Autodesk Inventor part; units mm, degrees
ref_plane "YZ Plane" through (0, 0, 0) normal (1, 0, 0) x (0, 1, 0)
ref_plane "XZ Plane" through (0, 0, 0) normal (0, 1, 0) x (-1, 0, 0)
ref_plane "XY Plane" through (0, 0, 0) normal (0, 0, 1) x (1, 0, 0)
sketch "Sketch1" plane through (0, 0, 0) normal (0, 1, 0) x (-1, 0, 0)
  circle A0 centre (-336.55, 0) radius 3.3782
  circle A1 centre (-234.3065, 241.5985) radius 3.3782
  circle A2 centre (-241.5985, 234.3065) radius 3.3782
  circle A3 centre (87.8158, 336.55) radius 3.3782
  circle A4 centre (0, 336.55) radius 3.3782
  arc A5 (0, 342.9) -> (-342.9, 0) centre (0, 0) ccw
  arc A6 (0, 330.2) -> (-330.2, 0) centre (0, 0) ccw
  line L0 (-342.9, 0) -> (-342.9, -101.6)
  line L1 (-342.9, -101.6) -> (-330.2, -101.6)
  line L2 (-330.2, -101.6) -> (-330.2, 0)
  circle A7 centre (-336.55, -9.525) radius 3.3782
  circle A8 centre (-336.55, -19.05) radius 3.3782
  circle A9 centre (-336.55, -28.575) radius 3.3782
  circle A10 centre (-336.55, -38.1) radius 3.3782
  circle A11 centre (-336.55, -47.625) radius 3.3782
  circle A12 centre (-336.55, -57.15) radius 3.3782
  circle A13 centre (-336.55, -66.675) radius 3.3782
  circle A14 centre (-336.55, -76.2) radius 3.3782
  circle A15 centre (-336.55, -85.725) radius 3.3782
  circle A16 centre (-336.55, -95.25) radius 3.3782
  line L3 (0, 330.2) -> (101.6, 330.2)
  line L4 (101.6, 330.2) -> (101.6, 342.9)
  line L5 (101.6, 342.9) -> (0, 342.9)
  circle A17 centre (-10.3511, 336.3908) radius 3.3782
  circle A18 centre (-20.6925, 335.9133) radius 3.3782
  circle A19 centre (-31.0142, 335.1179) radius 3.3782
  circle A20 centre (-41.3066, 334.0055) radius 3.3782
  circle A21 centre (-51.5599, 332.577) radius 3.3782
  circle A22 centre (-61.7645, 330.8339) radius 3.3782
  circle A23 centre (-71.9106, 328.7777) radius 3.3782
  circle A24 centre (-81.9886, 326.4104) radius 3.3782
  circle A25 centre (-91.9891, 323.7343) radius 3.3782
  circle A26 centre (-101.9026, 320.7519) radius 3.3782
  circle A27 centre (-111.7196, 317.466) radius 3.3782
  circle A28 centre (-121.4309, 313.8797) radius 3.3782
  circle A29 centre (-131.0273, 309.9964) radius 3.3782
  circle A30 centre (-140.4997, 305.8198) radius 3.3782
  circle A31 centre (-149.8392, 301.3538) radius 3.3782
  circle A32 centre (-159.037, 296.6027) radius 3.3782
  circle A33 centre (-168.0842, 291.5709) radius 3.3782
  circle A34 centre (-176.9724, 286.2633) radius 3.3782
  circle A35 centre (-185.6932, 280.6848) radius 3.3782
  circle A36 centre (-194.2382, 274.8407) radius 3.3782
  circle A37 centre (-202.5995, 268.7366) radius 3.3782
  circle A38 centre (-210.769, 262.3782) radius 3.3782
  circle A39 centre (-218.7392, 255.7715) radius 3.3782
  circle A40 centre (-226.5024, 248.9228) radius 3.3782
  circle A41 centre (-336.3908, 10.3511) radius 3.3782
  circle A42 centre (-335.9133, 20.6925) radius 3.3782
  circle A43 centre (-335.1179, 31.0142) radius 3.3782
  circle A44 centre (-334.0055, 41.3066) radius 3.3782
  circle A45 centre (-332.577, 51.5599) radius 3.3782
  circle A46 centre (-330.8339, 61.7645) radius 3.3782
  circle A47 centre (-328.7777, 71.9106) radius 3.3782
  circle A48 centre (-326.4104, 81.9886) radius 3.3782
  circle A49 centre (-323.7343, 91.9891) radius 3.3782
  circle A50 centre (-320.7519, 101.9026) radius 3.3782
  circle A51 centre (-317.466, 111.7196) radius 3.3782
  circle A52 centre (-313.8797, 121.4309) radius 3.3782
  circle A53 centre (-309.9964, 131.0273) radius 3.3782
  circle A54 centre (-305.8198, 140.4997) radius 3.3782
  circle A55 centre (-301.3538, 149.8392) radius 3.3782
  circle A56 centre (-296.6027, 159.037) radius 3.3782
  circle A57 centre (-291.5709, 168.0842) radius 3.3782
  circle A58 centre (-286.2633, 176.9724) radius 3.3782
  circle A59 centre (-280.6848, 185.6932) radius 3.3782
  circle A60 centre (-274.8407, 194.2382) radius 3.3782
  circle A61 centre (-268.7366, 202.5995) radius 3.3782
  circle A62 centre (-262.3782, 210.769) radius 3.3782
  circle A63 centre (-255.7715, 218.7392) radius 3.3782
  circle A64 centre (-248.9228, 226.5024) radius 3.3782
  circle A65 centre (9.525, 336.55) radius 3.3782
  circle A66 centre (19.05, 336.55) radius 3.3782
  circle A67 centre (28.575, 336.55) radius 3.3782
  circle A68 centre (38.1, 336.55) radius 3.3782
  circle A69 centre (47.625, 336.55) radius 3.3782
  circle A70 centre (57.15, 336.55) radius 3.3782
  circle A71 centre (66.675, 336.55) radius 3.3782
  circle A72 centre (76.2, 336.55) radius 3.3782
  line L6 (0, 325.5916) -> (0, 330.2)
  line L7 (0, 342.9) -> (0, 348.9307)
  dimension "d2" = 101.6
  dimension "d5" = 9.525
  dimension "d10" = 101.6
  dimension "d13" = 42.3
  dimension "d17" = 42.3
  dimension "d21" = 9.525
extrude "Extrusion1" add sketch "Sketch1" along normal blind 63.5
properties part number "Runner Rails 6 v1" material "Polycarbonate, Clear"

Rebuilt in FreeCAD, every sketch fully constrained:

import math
import FreeCAD as App
import Part
import Sketcher
Q = App.Units.Quantity

doc = App.newDocument("Part")
body = doc.addObject("PartDesign::Body", "Body")

# Sketch on XZ plane
sketch1 = body.newObject("Sketcher::SketchObject", "Sketch")
sketch1.AttachmentSupport = (doc.getObject("XZ_Plane"), [""])
sketch1.MapMode = "FlatFace"
sketch1.addGeometry(Part.LineSegment(App.Vector(-101.6, 342.9, 0), App.Vector(0, 342.9, 0)), False)
sketch1.addGeometry(Part.ArcOfCircle(Part.Circle(App.Vector(0, 0, 0), App.Vector(0, 0, 1), 342.9), math.radians(0), math.radians(90)), False)
sketch1.addGeometry(Part.LineSegment(App.Vector(342.9, 0, 0), App.Vector(342.9, -101.6, 0)), False)
sketch1.addGeometry(Part.LineSegment(App.Vector(342.9, -101.6, 0), App.Vector(330.2, -101.6, 0)), False)
sketch1.addGeometry(Part.LineSegment(App.Vector(330.2, -101.6, 0), App.Vector(330.2, 0, 0)), False)
sketch1.addGeometry(Part.ArcOfCircle(Part.Circle(App.Vector(0, 0, 0), App.Vector(0, 0, 1), 330.2), math.radians(0), math.radians(90)), False)
sketch1.addGeometry(Part.LineSegment(App.Vector(0, 330.2, 0), App.Vector(-101.6, 330.2, 0)), False)
sketch1.addGeometry(Part.LineSegment(App.Vector(-101.6, 330.2, 0), App.Vector(-101.6, 342.9, 0)), False)
sketch1.addGeometry(Part.Circle(App.Vector(336.6, -95.2, 0), App.Vector(0, 0, 1), 3.4), False)
sketch1.addGeometry(Part.Circle(App.Vector(336.6, -85.7, 0), App.Vector(0, 0, 1), 3.4), False)
sketch1.addGeometry(Part.Circle(App.Vector(336.6, -76.2, 0), App.Vector(0, 0, 1), 3.4), False)
sketch1.addGeometry(Part.Circle(App.Vector(336.6, -66.7, 0), App.Vector(0, 0, 1), 3.4), False)
sketch1.addGeometry(Part.Circle(App.Vector(336.6, -57.1, 0), App.Vector(0, 0, 1), 3.4), False)
sketch1.addGeometry(Part.Circle(App.Vector(336.6, -47.6, 0), App.Vector(0, 0, 1), 3.4), False)
sketch1.addGeometry(Part.Circle(App.Vector(336.6, -38.1, 0), App.Vector(0, 0, 1), 3.4), False)
sketch1.addGeometry(Part.Circle(App.Vector(336.6, -28.6, 0), App.Vector(0, 0, 1), 3.4), False)
sketch1.addGeometry(Part.Circle(App.Vector(336.6, -19.1, 0), App.Vector(0, 0, 1), 3.4), False)
sketch1.addGeometry(Part.Circle(App.Vector(336.6, -9.5, 0), App.Vector(0, 0, 1), 3.4), False)
sketch1.addGeometry(Part.Circle(App.Vector(336.6, 0, 0), App.Vector(0, 0, 1), 3.4), False)
sketch1.addGeometry(Part.Circle(App.Vector(336.4, 10.4, 0), App.Vector(0, 0, 1), 3.4), False)
sketch1.addGeometry(Part.Circle(App.Vector(335.9, 20.7, 0), App.Vector(0, 0, 1), 3.4), False)
sketch1.addGeometry(Part.Circle(App.Vector(335.1, 31, 0), App.Vector(0, 0, 1), 3.4), False)
sketch1.addGeometry(Part.Circle(App.Vector(334, 41.3, 0), App.Vector(0, 0, 1), 3.4), False)
sketch1.addGeometry(Part.Circle(App.Vector(332.6, 51.6, 0), App.Vector(0, 0, 1), 3.4), False)
sketch1.addGeometry(Part.Circle(App.Vector(330.8, 61.8, 0), App.Vector(0, 0, 1), 3.4), False)
sketch1.addGeometry(Part.Circle(App.Vector(328.8, 71.9, 0), App.Vector(0, 0, 1), 3.4), False)
sketch1.addGeometry(Part.Circle(App.Vector(326.4, 82, 0), App.Vector(0, 0, 1), 3.4), False)
sketch1.addGeometry(Part.Circle(App.Vector(323.7, 92, 0), App.Vector(0, 0, 1), 3.4), False)
sketch1.addGeometry(Part.Circle(App.Vector(320.8, 101.9, 0), App.Vector(0, 0, 1), 3.4), False)
sketch1.addGeometry(Part.Circle(App.Vector(317.5, 111.7, 0), App.Vector(0, 0, 1), 3.4), False)
sketch1.addGeometry(Part.Circle(App.Vector(313.9, 121.4, 0), App.Vector(0, 0, 1), 3.4), False)
sketch1.addGeometry(Part.Circle(App.Vector(310, 131, 0), App.Vector(0, 0, 1), 3.4), False)
sketch1.addGeometry(Part.Circle(App.Vector(305.8, 140.5, 0), App.Vector(0, 0, 1), 3.4), False)
sketch1.addGeometry(Part.Circle(App.Vector(301.4, 149.8, 0), App.Vector(0, 0, 1), 3.4), False)
sketch1.addGeometry(Part.Circle(App.Vector(296.6, 159, 0), App.Vector(0, 0, 1), 3.4), False)
sketch1.addGeometry(Part.Circle(App.Vector(291.6, 168.1, 0), App.Vector(0, 0, 1), 3.4), False)
sketch1.addGeometry(Part.Circle(App.Vector(286.3, 177, 0), App.Vector(0, 0, 1), 3.4), False)
sketch1.addGeometry(Part.Circle(App.Vector(280.7, 185.7, 0), App.Vector(0, 0, 1), 3.4), False)
sketch1.addGeometry(Part.Circle(App.Vector(274.8, 194.2, 0), App.Vector(0, 0, 1), 3.4), False)
sketch1.addGeometry(Part.Circle(App.Vector(268.7, 202.6, 0), App.Vector(0, 0, 1), 3.4), False)
sketch1.addGeometry(Part.Circle(App.Vector(262.4, 210.8, 0), App.Vector(0, 0, 1), 3.4), False)
sketch1.addGeometry(Part.Circle(App.Vector(255.8, 218.7, 0), App.Vector(0, 0, 1), 3.4), False)
sketch1.addGeometry(Part.Circle(App.Vector(248.9, 226.5, 0), App.Vector(0, 0, 1), 3.4), False)
sketch1.addGeometry(Part.Circle(App.Vector(241.6, 234.3, 0), App.Vector(0, 0, 1), 3.4), False)
sketch1.addGeometry(Part.Circle(App.Vector(234.3, 241.6, 0), App.Vector(0, 0, 1), 3.4), False)
sketch1.addGeometry(Part.Circle(App.Vector(226.5, 248.9, 0), App.Vector(0, 0, 1), 3.4), False)
sketch1.addGeometry(Part.Circle(App.Vector(218.7, 255.8, 0), App.Vector(0, 0, 1), 3.4), False)
sketch1.addGeometry(Part.Circle(App.Vector(210.8, 262.4, 0), App.Vector(0, 0, 1), 3.4), False)
sketch1.addGeometry(Part.Circle(App.Vector(202.6, 268.7, 0), App.Vector(0, 0, 1), 3.4), False)
sketch1.addGeometry(Part.Circle(App.Vector(194.2, 274.8, 0), App.Vector(0, 0, 1), 3.4), False)
sketch1.addGeometry(Part.Circle(App.Vector(185.7, 280.7, 0), App.Vector(0, 0, 1), 3.4), False)
sketch1.addGeometry(Part.Circle(App.Vector(177, 286.3, 0), App.Vector(0, 0, 1), 3.4), False)
sketch1.addGeometry(Part.Circle(App.Vector(168.1, 291.6, 0), App.Vector(0, 0, 1), 3.4), False)
sketch1.addGeometry(Part.Circle(App.Vector(159, 296.6, 0), App.Vector(0, 0, 1), 3.4), False)
sketch1.addGeometry(Part.Circle(App.Vector(149.8, 301.4, 0), App.Vector(0, 0, 1), 3.4), False)
sketch1.addGeometry(Part.Circle(App.Vector(140.5, 305.8, 0), App.Vector(0, 0, 1), 3.4), False)
sketch1.addGeometry(Part.Circle(App.Vector(131, 310, 0), App.Vector(0, 0, 1), 3.4), False)
sketch1.addGeometry(Part.Circle(App.Vector(121.4, 313.9, 0), App.Vector(0, 0, 1), 3.4), False)
sketch1.addGeometry(Part.Circle(App.Vector(111.7, 317.5, 0), App.Vector(0, 0, 1), 3.4), False)
sketch1.addGeometry(Part.Circle(App.Vector(101.9, 320.8, 0), App.Vector(0, 0, 1), 3.4), False)
sketch1.addGeometry(Part.Circle(App.Vector(92, 323.7, 0), App.Vector(0, 0, 1), 3.4), False)
sketch1.addGeometry(Part.Circle(App.Vector(82, 326.4, 0), App.Vector(0, 0, 1), 3.4), False)
sketch1.addGeometry(Part.Circle(App.Vector(71.9, 328.8, 0), App.Vector(0, 0, 1), 3.4), False)
sketch1.addGeometry(Part.Circle(App.Vector(61.8, 330.8, 0), App.Vector(0, 0, 1), 3.4), False)
sketch1.addGeometry(Part.Circle(App.Vector(51.6, 332.6, 0), App.Vector(0, 0, 1), 3.4), False)
sketch1.addGeometry(Part.Circle(App.Vector(41.3, 334, 0), App.Vector(0, 0, 1), 3.4), False)
sketch1.addGeometry(Part.Circle(App.Vector(31, 335.1, 0), App.Vector(0, 0, 1), 3.4), False)
sketch1.addGeometry(Part.Circle(App.Vector(20.7, 335.9, 0), App.Vector(0, 0, 1), 3.4), False)
sketch1.addGeometry(Part.Circle(App.Vector(10.4, 336.4, 0), App.Vector(0, 0, 1), 3.4), False)
sketch1.addGeometry(Part.Circle(App.Vector(0, 336.6, 0), App.Vector(0, 0, 1), 3.4), False)
sketch1.addGeometry(Part.Circle(App.Vector(-9.5, 336.6, 0), App.Vector(0, 0, 1), 3.4), False)
sketch1.addGeometry(Part.Circle(App.Vector(-19.1, 336.6, 0), App.Vector(0, 0, 1), 3.4), False)
sketch1.addGeometry(Part.Circle(App.Vector(-28.6, 336.6, 0), App.Vector(0, 0, 1), 3.4), False)
sketch1.addGeometry(Part.Circle(App.Vector(-38.1, 336.6, 0), App.Vector(0, 0, 1), 3.4), False)
sketch1.addGeometry(Part.Circle(App.Vector(-47.6, 336.6, 0), App.Vector(0, 0, 1), 3.4), False)
sketch1.addGeometry(Part.Circle(App.Vector(-57.1, 336.6, 0), App.Vector(0, 0, 1), 3.4), False)
sketch1.addGeometry(Part.Circle(App.Vector(-66.7, 336.6, 0), App.Vector(0, 0, 1), 3.4), False)
sketch1.addGeometry(Part.Circle(App.Vector(-76.2, 336.6, 0), App.Vector(0, 0, 1), 3.4), False)
sketch1.addGeometry(Part.Circle(App.Vector(-87.8, 336.6, 0), App.Vector(0, 0, 1), 3.4), False)
sketch1.addConstraint(Sketcher.Constraint("Tangent", 0, 2, 1, 2))
sketch1.addConstraint(Sketcher.Constraint("Tangent", 1, 1, 2, 1))
sketch1.addConstraint(Sketcher.Constraint("Coincident", 2, 2, 3, 1))
sketch1.addConstraint(Sketcher.Constraint("Coincident", 3, 2, 4, 1))
sketch1.addConstraint(Sketcher.Constraint("Tangent", 4, 2, 5, 1))
sketch1.addConstraint(Sketcher.Constraint("Tangent", 5, 2, 6, 1))
sketch1.addConstraint(Sketcher.Constraint("Coincident", 6, 2, 7, 1))
sketch1.addConstraint(Sketcher.Constraint("Coincident", 7, 2, 0, 1))
sketch1.addConstraint(Sketcher.Constraint("Horizontal", 0))
sketch1.addConstraint(Sketcher.Constraint("Vertical", 2))
sketch1.addConstraint(Sketcher.Constraint("Horizontal", 3))
sketch1.addConstraint(Sketcher.Constraint("Vertical", 4))
sketch1.addConstraint(Sketcher.Constraint("Horizontal", 6))
sketch1.addConstraint(Sketcher.Constraint("Vertical", 7))
sketch1.addConstraint(Sketcher.Constraint("Coincident", 1, 3, -1, 1))
sketch1.addConstraint(Sketcher.Constraint("Coincident", 5, 3, -1, 1))
sketch1.addConstraint(Sketcher.Constraint("Equal", 8, 9))
sketch1.addConstraint(Sketcher.Constraint("Equal", 9, 10))
sketch1.addConstraint(Sketcher.Constraint("Equal", 10, 11))
sketch1.addConstraint(Sketcher.Constraint("Equal", 11, 12))
sketch1.addConstraint(Sketcher.Constraint("Equal", 12, 13))
sketch1.addConstraint(Sketcher.Constraint("Equal", 13, 14))
sketch1.addConstraint(Sketcher.Constraint("Equal", 14, 15))
sketch1.addConstraint(Sketcher.Constraint("Equal", 15, 16))
sketch1.addConstraint(Sketcher.Constraint("Equal", 16, 17))
sketch1.addConstraint(Sketcher.Constraint("Equal", 17, 18))
sketch1.addConstraint(Sketcher.Constraint("Equal", 18, 19))
sketch1.addConstraint(Sketcher.Constraint("Equal", 19, 20))
sketch1.addConstraint(Sketcher.Constraint("Equal", 20, 21))
sketch1.addConstraint(Sketcher.Constraint("Equal", 21, 22))
sketch1.addConstraint(Sketcher.Constraint("Equal", 22, 23))
sketch1.addConstraint(Sketcher.Constraint("Equal", 23, 24))
sketch1.addConstraint(Sketcher.Constraint("Equal", 24, 25))
sketch1.addConstraint(Sketcher.Constraint("Equal", 25, 26))
sketch1.addConstraint(Sketcher.Constraint("Equal", 26, 27))
sketch1.addConstraint(Sketcher.Constraint("Equal", 27, 28))
sketch1.addConstraint(Sketcher.Constraint("Equal", 28, 29))
sketch1.addConstraint(Sketcher.Constraint("Equal", 29, 30))
sketch1.addConstraint(Sketcher.Constraint("Equal", 30, 31))
sketch1.addConstraint(Sketcher.Constraint("Equal", 31, 32))
sketch1.addConstraint(Sketcher.Constraint("Equal", 32, 33))
sketch1.addConstraint(Sketcher.Constraint("Equal", 33, 34))
sketch1.addConstraint(Sketcher.Constraint("Equal", 34, 35))
sketch1.addConstraint(Sketcher.Constraint("Equal", 35, 36))
sketch1.addConstraint(Sketcher.Constraint("Equal", 36, 37))
sketch1.addConstraint(Sketcher.Constraint("Equal", 37, 38))
sketch1.addConstraint(Sketcher.Constraint("Equal", 38, 39))
sketch1.addConstraint(Sketcher.Constraint("Equal", 39, 40))
sketch1.addConstraint(Sketcher.Constraint("Equal", 40, 41))
sketch1.addConstraint(Sketcher.Constraint("Equal", 41, 42))
sketch1.addConstraint(Sketcher.Constraint("Equal", 42, 43))
sketch1.addConstraint(Sketcher.Constraint("Equal", 43, 44))
sketch1.addConstraint(Sketcher.Constraint("Equal", 44, 45))
sketch1.addConstraint(Sketcher.Constraint("Equal", 45, 46))
sketch1.addConstraint(Sketcher.Constraint("Equal", 46, 47))
sketch1.addConstraint(Sketcher.Constraint("Equal", 47, 48))
sketch1.addConstraint(Sketcher.Constraint("Equal", 48, 49))
sketch1.addConstraint(Sketcher.Constraint("Equal", 49, 50))
sketch1.addConstraint(Sketcher.Constraint("Equal", 50, 51))
sketch1.addConstraint(Sketcher.Constraint("Equal", 51, 52))
sketch1.addConstraint(Sketcher.Constraint("Equal", 52, 53))
sketch1.addConstraint(Sketcher.Constraint("Equal", 53, 54))
sketch1.addConstraint(Sketcher.Constraint("Equal", 54, 55))
sketch1.addConstraint(Sketcher.Constraint("Equal", 55, 56))
sketch1.addConstraint(Sketcher.Constraint("Equal", 56, 57))
sketch1.addConstraint(Sketcher.Constraint("Equal", 57, 58))
sketch1.addConstraint(Sketcher.Constraint("Equal", 58, 59))
sketch1.addConstraint(Sketcher.Constraint("Equal", 59, 60))
sketch1.addConstraint(Sketcher.Constraint("Equal", 60, 61))
sketch1.addConstraint(Sketcher.Constraint("Equal", 61, 62))
sketch1.addConstraint(Sketcher.Constraint("Equal", 62, 63))
sketch1.addConstraint(Sketcher.Constraint("Equal", 63, 64))
sketch1.addConstraint(Sketcher.Constraint("Equal", 64, 65))
sketch1.addConstraint(Sketcher.Constraint("Equal", 65, 66))
sketch1.addConstraint(Sketcher.Constraint("Equal", 66, 67))
sketch1.addConstraint(Sketcher.Constraint("Equal", 67, 68))
sketch1.addConstraint(Sketcher.Constraint("Equal", 68, 69))
sketch1.addConstraint(Sketcher.Constraint("Equal", 69, 70))
sketch1.addConstraint(Sketcher.Constraint("Equal", 70, 71))
sketch1.addConstraint(Sketcher.Constraint("Equal", 71, 72))
sketch1.addConstraint(Sketcher.Constraint("Equal", 72, 73))
sketch1.addConstraint(Sketcher.Constraint("Equal", 73, 74))
sketch1.addConstraint(Sketcher.Constraint("Equal", 74, 75))
sketch1.addConstraint(Sketcher.Constraint("Equal", 75, 76))
sketch1.addConstraint(Sketcher.Constraint("Equal", 76, 77))
sketch1.addConstraint(Sketcher.Constraint("Equal", 77, 78))
sketch1.addConstraint(Sketcher.Constraint("PointOnObject", 18, 3, -1))
sketch1.addConstraint(Sketcher.Constraint("PointOnObject", 69, 3, -2))
sketch1.addConstraint(Sketcher.Constraint("Horizontal", 69, 3, 70, 3))
sketch1.addConstraint(Sketcher.Constraint("Horizontal", 70, 3, 71, 3))
sketch1.addConstraint(Sketcher.Constraint("Horizontal", 71, 3, 72, 3))
sketch1.addConstraint(Sketcher.Constraint("Horizontal", 72, 3, 73, 3))
sketch1.addConstraint(Sketcher.Constraint("Horizontal", 73, 3, 74, 3))
sketch1.addConstraint(Sketcher.Constraint("Horizontal", 74, 3, 75, 3))
sketch1.addConstraint(Sketcher.Constraint("Horizontal", 75, 3, 76, 3))
sketch1.addConstraint(Sketcher.Constraint("Horizontal", 76, 3, 77, 3))
sketch1.addConstraint(Sketcher.Constraint("Horizontal", 77, 3, 78, 3))
sketch1.addConstraint(Sketcher.Constraint("Vertical", 8, 3, 9, 3))
sketch1.addConstraint(Sketcher.Constraint("Vertical", 9, 3, 10, 3))
sketch1.addConstraint(Sketcher.Constraint("Vertical", 10, 3, 11, 3))
sketch1.addConstraint(Sketcher.Constraint("Vertical", 11, 3, 12, 3))
sketch1.addConstraint(Sketcher.Constraint("Vertical", 12, 3, 13, 3))
sketch1.addConstraint(Sketcher.Constraint("Vertical", 13, 3, 14, 3))
sketch1.addConstraint(Sketcher.Constraint("Vertical", 14, 3, 15, 3))
sketch1.addConstraint(Sketcher.Constraint("Vertical", 15, 3, 16, 3))
sketch1.addConstraint(Sketcher.Constraint("Vertical", 16, 3, 17, 3))
sketch1.addConstraint(Sketcher.Constraint("Vertical", 17, 3, 18, 3))
sketch1.addConstraint(Sketcher.Constraint("Equal", 6, 2))
sketch1.addConstraint(Sketcher.Constraint("DistanceX", 0, 1, 0, 2, Q("4 in")))
sketch1.addConstraint(Sketcher.Constraint("Radius", 5, Q("13 in")))
sketch1.addConstraint(Sketcher.Constraint("Radius", 1, Q("13.5 in")))
sketch1.addConstraint(Sketcher.Constraint("Diameter", 8, Q("0.266 in")))
sketch1.addConstraint(Sketcher.Constraint("DistanceY", 10, 3, -1, 1, Q("3 in")))
sketch1.addConstraint(Sketcher.Constraint("DistanceY", 17, 3, -1, 1, Q("0.375 in")))
sketch1.addConstraint(Sketcher.Constraint("DistanceX", 70, 3, -1, 1, Q("0.375 in")))
sketch1.addConstraint(Sketcher.Constraint("DistanceX", 77, 3, -1, 1, Q("3 in")))
sketch1.addConstraint(Sketcher.Constraint("DistanceY", 14, 3, -1, 1, Q("1.5 in")))
sketch1.addConstraint(Sketcher.Constraint("DistanceX", 73, 3, -1, 1, Q("1.5 in")))
sketch1.addConstraint(Sketcher.Constraint("DistanceX", -1, 1, 8, 3, Q("13.25 in")))
sketch1.addConstraint(Sketcher.Constraint("DistanceY", 8, 3, -1, 1, Q("3.75 in")))
sketch1.addConstraint(Sketcher.Constraint("DistanceY", 12, 3, -1, 1, Q("2.25 in")))
sketch1.addConstraint(Sketcher.Constraint("DistanceY", 16, 3, -1, 1, Q("0.75 in")))
sketch1.addConstraint(Sketcher.Constraint("DistanceY", -1, 1, 69, 3, Q("13.25 in")))
sketch1.addConstraint(Sketcher.Constraint("DistanceX", 71, 3, -1, 1, Q("0.75 in")))
sketch1.addConstraint(Sketcher.Constraint("DistanceX", 75, 3, -1, 1, Q("2.25 in")))
sketch1.addConstraint(Sketcher.Constraint("DistanceY", 9, 3, -1, 1, Q("3.375 in")))
sketch1.addConstraint(Sketcher.Constraint("DistanceY", 11, 3, -1, 1, Q("2.625 in")))
sketch1.addConstraint(Sketcher.Constraint("DistanceY", 13, 3, -1, 1, Q("1.875 in")))
sketch1.addConstraint(Sketcher.Constraint("DistanceY", 15, 3, -1, 1, Q("1.125 in")))
sketch1.addConstraint(Sketcher.Constraint("DistanceX", -1, 1, 25, 3, Q("12.944 in")))
sketch1.addConstraint(Sketcher.Constraint("DistanceY", -1, 1, 40, 3, Q("8.298 in")))
sketch1.addConstraint(Sketcher.Constraint("DistanceX", -1, 1, 47, 3, Q("8.298 in")))
sketch1.addConstraint(Sketcher.Constraint("DistanceY", -1, 1, 62, 3, Q("12.944 in")))
sketch1.addConstraint(Sketcher.Constraint("DistanceX", 72, 3, -1, 1, Q("1.125 in")))
sketch1.addConstraint(Sketcher.Constraint("DistanceX", 74, 3, -1, 1, Q("1.875 in")))
sketch1.addConstraint(Sketcher.Constraint("DistanceX", 76, 3, -1, 1, Q("2.625 in")))
sketch1.addConstraint(Sketcher.Constraint("DistanceX", -1, 1, 26, 3, Q("12.8508 in")))
sketch1.addConstraint(Sketcher.Constraint("DistanceY", -1, 1, 26, 3, Q("3.2279 in")))
sketch1.addConstraint(Sketcher.Constraint("DistanceY", -1, 1, 29, 3, Q("4.3984 in")))
sketch1.addConstraint(Sketcher.Constraint("DistanceY", -1, 1, 34, 3, Q("6.2613 in")))
sketch1.addConstraint(Sketcher.Constraint("DistanceY", -1, 1, 35, 3, Q("6.6175 in")))
sketch1.addConstraint(Sketcher.Constraint("DistanceX", -1, 1, 36, 3, Q("11.2702 in")))
sketch1.addConstraint(Sketcher.Constraint("DistanceX", -1, 1, 38, 3, Q("10.8205 in")))
sketch1.addConstraint(Sketcher.Constraint("DistanceX", -1, 1, 42, 3, Q("9.8001 in")))
sketch1.addConstraint(Sketcher.Constraint("DistanceY", -1, 1, 45, 3, Q("9.8001 in")))
sketch1.addConstraint(Sketcher.Constraint("DistanceY", -1, 1, 49, 3, Q("10.8205 in")))
sketch1.addConstraint(Sketcher.Constraint("DistanceY", -1, 1, 51, 3, Q("11.2702 in")))
sketch1.addConstraint(Sketcher.Constraint("DistanceX", -1, 1, 52, 3, Q("6.6175 in")))
sketch1.addConstraint(Sketcher.Constraint("DistanceX", -1, 1, 53, 3, Q("6.2613 in")))
sketch1.addConstraint(Sketcher.Constraint("DistanceX", -1, 1, 58, 3, Q("4.3984 in")))
sketch1.addConstraint(Sketcher.Constraint("DistanceX", -1, 1, 61, 3, Q("3.2279 in")))
sketch1.addConstraint(Sketcher.Constraint("DistanceY", -1, 1, 61, 3, Q("12.8508 in")))
sketch1.addConstraint(Sketcher.Constraint("DistanceX", -1, 1, 19, 3, 336.3908))
sketch1.addConstraint(Sketcher.Constraint("DistanceY", -1, 1, 19, 3, 10.351))
sketch1.addConstraint(Sketcher.Constraint("DistanceX", -1, 1, 20, 3, 335.9133))
sketch1.addConstraint(Sketcher.Constraint("DistanceY", -1, 1, 20, 3, 20.6925))
sketch1.addConstraint(Sketcher.Constraint("DistanceX", -1, 1, 21, 3, 335.118))
sketch1.addConstraint(Sketcher.Constraint("DistanceY", -1, 1, 21, 3, 31.0142))
sketch1.addConstraint(Sketcher.Constraint("DistanceX", -1, 1, 22, 3, 334.0055))
sketch1.addConstraint(Sketcher.Constraint("DistanceY", -1, 1, 22, 3, 41.3066))
sketch1.addConstraint(Sketcher.Constraint("DistanceX", -1, 1, 23, 3, 332.577))
sketch1.addConstraint(Sketcher.Constraint("DistanceY", -1, 1, 23, 3, 51.56))
sketch1.addConstraint(Sketcher.Constraint("DistanceX", -1, 1, 24, 3, 330.834))
sketch1.addConstraint(Sketcher.Constraint("DistanceY", -1, 1, 24, 3, 61.7645))
sketch1.addConstraint(Sketcher.Constraint("DistanceY", -1, 1, 25, 3, 71.9106))
sketch1.addConstraint(Sketcher.Constraint("DistanceX", -1, 1, 27, 3, 323.7343))
sketch1.addConstraint(Sketcher.Constraint("DistanceY", -1, 1, 27, 3, 91.989))
sketch1.addConstraint(Sketcher.Constraint("DistanceX", -1, 1, 28, 3, 320.752))
sketch1.addConstraint(Sketcher.Constraint("DistanceY", -1, 1, 28, 3, 101.9026))
sketch1.addConstraint(Sketcher.Constraint("DistanceX", -1, 1, 29, 3, 317.466))
sketch1.addConstraint(Sketcher.Constraint("DistanceX", -1, 1, 30, 3, 313.8797))
sketch1.addConstraint(Sketcher.Constraint("DistanceY", -1, 1, 30, 3, 121.431))
sketch1.addConstraint(Sketcher.Constraint("DistanceX", -1, 1, 31, 3, 309.9964))
sketch1.addConstraint(Sketcher.Constraint("DistanceY", -1, 1, 31, 3, 131.0273))
sketch1.addConstraint(Sketcher.Constraint("DistanceX", -1, 1, 32, 3, 305.8198))
sketch1.addConstraint(Sketcher.Constraint("DistanceY", -1, 1, 32, 3, 140.4997))
sketch1.addConstraint(Sketcher.Constraint("DistanceX", -1, 1, 33, 3, 301.3538))
sketch1.addConstraint(Sketcher.Constraint("DistanceY", -1, 1, 33, 3, 149.8392))
sketch1.addConstraint(Sketcher.Constraint("DistanceX", -1, 1, 34, 3, 296.6027))
sketch1.addConstraint(Sketcher.Constraint("DistanceX", -1, 1, 35, 3, 291.571))
sketch1.addConstraint(Sketcher.Constraint("DistanceY", -1, 1, 36, 3, 176.9724))
sketch1.addConstraint(Sketcher.Constraint("DistanceX", -1, 1, 37, 3, 280.6848))
sketch1.addConstraint(Sketcher.Constraint("DistanceY", -1, 1, 37, 3, 185.6932))
sketch1.addConstraint(Sketcher.Constraint("DistanceY", -1, 1, 38, 3, 194.2382))
sketch1.addConstraint(Sketcher.Constraint("DistanceX", -1, 1, 39, 3, 268.7366))
sketch1.addConstraint(Sketcher.Constraint("DistanceY", -1, 1, 39, 3, 202.5995))
sketch1.addConstraint(Sketcher.Constraint("DistanceX", -1, 1, 40, 3, 262.3782))
sketch1.addConstraint(Sketcher.Constraint("DistanceX", -1, 1, 41, 3, 255.7715))
sketch1.addConstraint(Sketcher.Constraint("DistanceY", -1, 1, 41, 3, 218.7392))
sketch1.addConstraint(Sketcher.Constraint("DistanceY", -1, 1, 42, 3, 226.5024))
sketch1.addConstraint(Sketcher.Constraint("DistanceX", -1, 1, 43, 3, 241.5985))
sketch1.addConstraint(Sketcher.Constraint("DistanceY", -1, 1, 43, 3, 234.3065))
sketch1.addConstraint(Sketcher.Constraint("DistanceX", -1, 1, 44, 3, 234.3065))
sketch1.addConstraint(Sketcher.Constraint("DistanceY", -1, 1, 44, 3, 241.5985))
sketch1.addConstraint(Sketcher.Constraint("DistanceX", -1, 1, 45, 3, 226.5024))
sketch1.addConstraint(Sketcher.Constraint("DistanceX", -1, 1, 46, 3, 218.7392))
sketch1.addConstraint(Sketcher.Constraint("DistanceY", -1, 1, 46, 3, 255.7715))
sketch1.addConstraint(Sketcher.Constraint("DistanceY", -1, 1, 47, 3, 262.3782))
sketch1.addConstraint(Sketcher.Constraint("DistanceX", -1, 1, 48, 3, 202.5995))
sketch1.addConstraint(Sketcher.Constraint("DistanceY", -1, 1, 48, 3, 268.7366))
sketch1.addConstraint(Sketcher.Constraint("DistanceX", -1, 1, 49, 3, 194.2382))
sketch1.addConstraint(Sketcher.Constraint("DistanceX", -1, 1, 50, 3, 185.6932))
sketch1.addConstraint(Sketcher.Constraint("DistanceY", -1, 1, 50, 3, 280.6848))
sketch1.addConstraint(Sketcher.Constraint("DistanceX", -1, 1, 51, 3, 176.9724))
sketch1.addConstraint(Sketcher.Constraint("DistanceY", -1, 1, 52, 3, 291.571))
sketch1.addConstraint(Sketcher.Constraint("DistanceY", -1, 1, 53, 3, 296.6027))
sketch1.addConstraint(Sketcher.Constraint("DistanceX", -1, 1, 54, 3, 149.8392))
sketch1.addConstraint(Sketcher.Constraint("DistanceY", -1, 1, 54, 3, 301.3538))
sketch1.addConstraint(Sketcher.Constraint("DistanceX", -1, 1, 55, 3, 140.4997))
sketch1.addConstraint(Sketcher.Constraint("DistanceY", -1, 1, 55, 3, 305.8198))
sketch1.addConstraint(Sketcher.Constraint("DistanceX", -1, 1, 56, 3, 131.0273))
sketch1.addConstraint(Sketcher.Constraint("DistanceY", -1, 1, 56, 3, 309.9964))
sketch1.addConstraint(Sketcher.Constraint("DistanceX", -1, 1, 57, 3, 121.431))
sketch1.addConstraint(Sketcher.Constraint("DistanceY", -1, 1, 57, 3, 313.8797))
sketch1.addConstraint(Sketcher.Constraint("DistanceY", -1, 1, 58, 3, 317.466))
sketch1.addConstraint(Sketcher.Constraint("DistanceX", -1, 1, 59, 3, 101.9026))
sketch1.addConstraint(Sketcher.Constraint("DistanceY", -1, 1, 59, 3, 320.752))
sketch1.addConstraint(Sketcher.Constraint("DistanceX", -1, 1, 60, 3, 91.989))
sketch1.addConstraint(Sketcher.Constraint("DistanceY", -1, 1, 60, 3, 323.7343))
sketch1.addConstraint(Sketcher.Constraint("DistanceX", -1, 1, 62, 3, 71.9106))
sketch1.addConstraint(Sketcher.Constraint("DistanceX", -1, 1, 63, 3, 61.7645))
sketch1.addConstraint(Sketcher.Constraint("DistanceY", -1, 1, 63, 3, 330.834))
sketch1.addConstraint(Sketcher.Constraint("DistanceX", -1, 1, 64, 3, 51.56))
sketch1.addConstraint(Sketcher.Constraint("DistanceY", -1, 1, 64, 3, 332.577))
sketch1.addConstraint(Sketcher.Constraint("DistanceX", -1, 1, 65, 3, 41.3066))
sketch1.addConstraint(Sketcher.Constraint("DistanceY", -1, 1, 65, 3, 334.0055))
sketch1.addConstraint(Sketcher.Constraint("DistanceX", -1, 1, 66, 3, 31.0142))
sketch1.addConstraint(Sketcher.Constraint("DistanceY", -1, 1, 66, 3, 335.118))
sketch1.addConstraint(Sketcher.Constraint("DistanceX", -1, 1, 67, 3, 20.6925))
sketch1.addConstraint(Sketcher.Constraint("DistanceY", -1, 1, 67, 3, 335.9133))
sketch1.addConstraint(Sketcher.Constraint("DistanceX", -1, 1, 68, 3, 10.351))
sketch1.addConstraint(Sketcher.Constraint("DistanceY", -1, 1, 68, 3, 336.3908))
sketch1.addConstraint(Sketcher.Constraint("DistanceX", 78, 3, -1, 1, 87.8158))
pad1 = body.newObject("PartDesign::Pad", "Pad")
pad1.Profile = sketch1
pad1.Length = Q("2.5 in")
pad1.Reversed = True

doc.recompute()
